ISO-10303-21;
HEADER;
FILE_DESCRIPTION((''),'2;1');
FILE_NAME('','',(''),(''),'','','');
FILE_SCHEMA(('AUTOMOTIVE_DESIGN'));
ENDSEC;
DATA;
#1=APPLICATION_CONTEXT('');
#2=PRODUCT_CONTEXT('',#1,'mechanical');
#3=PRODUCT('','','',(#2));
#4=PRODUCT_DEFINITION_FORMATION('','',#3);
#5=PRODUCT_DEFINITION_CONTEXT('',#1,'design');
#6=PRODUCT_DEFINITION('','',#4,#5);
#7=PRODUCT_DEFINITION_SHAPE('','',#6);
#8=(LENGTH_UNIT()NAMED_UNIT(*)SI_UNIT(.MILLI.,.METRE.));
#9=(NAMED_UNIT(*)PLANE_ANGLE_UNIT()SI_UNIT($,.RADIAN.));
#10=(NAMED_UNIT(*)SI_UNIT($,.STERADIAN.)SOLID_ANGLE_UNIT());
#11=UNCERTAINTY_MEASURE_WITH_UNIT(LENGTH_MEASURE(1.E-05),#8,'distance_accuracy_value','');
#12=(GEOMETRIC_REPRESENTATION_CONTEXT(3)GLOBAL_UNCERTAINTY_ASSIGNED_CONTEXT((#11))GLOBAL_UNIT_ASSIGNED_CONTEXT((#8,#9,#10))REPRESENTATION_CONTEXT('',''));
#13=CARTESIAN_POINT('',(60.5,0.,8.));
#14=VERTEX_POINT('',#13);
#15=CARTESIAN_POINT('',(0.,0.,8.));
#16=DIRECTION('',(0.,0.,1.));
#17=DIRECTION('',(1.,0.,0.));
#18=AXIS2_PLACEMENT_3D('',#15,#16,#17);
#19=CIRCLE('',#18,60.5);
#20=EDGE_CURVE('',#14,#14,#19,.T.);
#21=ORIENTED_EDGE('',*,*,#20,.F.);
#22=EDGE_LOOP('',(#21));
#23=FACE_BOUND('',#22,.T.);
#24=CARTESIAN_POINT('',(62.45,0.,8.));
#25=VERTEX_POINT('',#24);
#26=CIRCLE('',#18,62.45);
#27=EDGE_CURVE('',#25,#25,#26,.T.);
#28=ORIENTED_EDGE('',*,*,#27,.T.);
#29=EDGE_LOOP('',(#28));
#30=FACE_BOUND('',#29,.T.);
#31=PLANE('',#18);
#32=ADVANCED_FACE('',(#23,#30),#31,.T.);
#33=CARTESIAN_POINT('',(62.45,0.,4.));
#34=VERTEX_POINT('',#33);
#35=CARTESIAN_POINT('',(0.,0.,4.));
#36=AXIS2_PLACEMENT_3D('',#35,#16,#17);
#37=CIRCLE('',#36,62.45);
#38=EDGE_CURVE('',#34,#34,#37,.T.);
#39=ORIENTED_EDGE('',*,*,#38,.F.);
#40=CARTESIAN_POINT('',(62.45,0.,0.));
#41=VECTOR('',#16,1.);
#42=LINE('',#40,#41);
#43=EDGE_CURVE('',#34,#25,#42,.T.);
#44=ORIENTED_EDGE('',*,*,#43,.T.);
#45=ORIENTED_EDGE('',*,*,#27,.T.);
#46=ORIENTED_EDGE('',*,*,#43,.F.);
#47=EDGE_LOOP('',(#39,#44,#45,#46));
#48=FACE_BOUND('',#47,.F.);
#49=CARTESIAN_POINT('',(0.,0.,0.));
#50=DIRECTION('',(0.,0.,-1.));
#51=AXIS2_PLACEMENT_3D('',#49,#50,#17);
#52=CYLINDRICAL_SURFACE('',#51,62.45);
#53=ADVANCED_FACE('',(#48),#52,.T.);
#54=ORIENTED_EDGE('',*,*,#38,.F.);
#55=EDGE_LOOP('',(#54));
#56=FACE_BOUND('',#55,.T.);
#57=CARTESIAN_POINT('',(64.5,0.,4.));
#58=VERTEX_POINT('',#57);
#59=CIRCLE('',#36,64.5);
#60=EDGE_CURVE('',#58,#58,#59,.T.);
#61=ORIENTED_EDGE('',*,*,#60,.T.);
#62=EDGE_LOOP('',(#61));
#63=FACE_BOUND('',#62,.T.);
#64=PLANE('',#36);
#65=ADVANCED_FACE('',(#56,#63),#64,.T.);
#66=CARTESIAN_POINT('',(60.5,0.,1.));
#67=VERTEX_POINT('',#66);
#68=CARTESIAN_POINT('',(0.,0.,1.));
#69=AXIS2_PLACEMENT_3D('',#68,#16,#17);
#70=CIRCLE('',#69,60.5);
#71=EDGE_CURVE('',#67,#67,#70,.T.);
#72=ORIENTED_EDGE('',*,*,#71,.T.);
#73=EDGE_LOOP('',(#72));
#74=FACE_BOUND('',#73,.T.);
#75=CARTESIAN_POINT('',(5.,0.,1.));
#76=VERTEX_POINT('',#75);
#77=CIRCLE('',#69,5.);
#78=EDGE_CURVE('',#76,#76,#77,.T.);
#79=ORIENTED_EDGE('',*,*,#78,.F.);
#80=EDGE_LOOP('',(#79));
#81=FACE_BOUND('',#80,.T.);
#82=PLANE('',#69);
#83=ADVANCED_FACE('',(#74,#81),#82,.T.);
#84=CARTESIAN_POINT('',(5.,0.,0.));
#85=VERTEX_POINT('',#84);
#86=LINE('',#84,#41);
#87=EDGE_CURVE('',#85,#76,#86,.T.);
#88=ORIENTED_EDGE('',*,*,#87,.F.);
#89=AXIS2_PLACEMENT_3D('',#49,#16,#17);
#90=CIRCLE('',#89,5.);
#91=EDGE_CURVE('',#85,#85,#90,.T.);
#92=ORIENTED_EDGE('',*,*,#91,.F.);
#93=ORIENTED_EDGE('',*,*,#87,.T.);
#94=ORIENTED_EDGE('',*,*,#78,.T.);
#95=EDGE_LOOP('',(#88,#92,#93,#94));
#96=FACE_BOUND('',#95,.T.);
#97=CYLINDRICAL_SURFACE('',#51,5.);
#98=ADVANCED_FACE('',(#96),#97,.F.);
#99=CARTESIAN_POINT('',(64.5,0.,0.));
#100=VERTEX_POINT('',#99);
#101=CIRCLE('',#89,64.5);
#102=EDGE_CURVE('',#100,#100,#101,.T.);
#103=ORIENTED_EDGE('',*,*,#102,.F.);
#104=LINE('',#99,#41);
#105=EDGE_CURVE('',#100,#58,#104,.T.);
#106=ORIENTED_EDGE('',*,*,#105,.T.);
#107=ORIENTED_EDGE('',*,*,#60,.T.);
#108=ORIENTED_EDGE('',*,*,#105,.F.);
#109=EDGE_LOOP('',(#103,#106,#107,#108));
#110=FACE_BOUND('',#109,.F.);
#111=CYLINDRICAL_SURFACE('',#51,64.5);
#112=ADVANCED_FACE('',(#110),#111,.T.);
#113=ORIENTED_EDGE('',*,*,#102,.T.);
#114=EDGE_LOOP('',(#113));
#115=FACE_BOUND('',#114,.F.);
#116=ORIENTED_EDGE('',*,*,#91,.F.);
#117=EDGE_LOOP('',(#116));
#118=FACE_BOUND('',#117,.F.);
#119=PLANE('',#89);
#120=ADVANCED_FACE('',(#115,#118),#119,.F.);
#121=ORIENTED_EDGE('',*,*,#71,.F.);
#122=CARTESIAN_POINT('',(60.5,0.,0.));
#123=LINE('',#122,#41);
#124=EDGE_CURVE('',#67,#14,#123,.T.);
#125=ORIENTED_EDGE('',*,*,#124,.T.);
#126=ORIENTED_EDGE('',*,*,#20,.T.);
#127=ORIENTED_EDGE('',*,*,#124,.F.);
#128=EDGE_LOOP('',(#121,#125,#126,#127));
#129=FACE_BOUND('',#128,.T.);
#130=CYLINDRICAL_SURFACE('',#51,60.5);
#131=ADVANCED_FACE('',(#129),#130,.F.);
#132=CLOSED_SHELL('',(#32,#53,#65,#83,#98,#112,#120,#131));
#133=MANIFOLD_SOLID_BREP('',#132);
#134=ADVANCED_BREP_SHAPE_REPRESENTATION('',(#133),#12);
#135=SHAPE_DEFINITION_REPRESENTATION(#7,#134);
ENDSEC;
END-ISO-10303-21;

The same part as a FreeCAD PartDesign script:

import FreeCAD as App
import Part
import Sketcher
from FreeCAD import Vector
Q = App.Units.Quantity

doc = App.newDocument("Part")
body = doc.addObject("PartDesign::Body", "Body")

# Sketch on XY plane
sketch1 = body.newObject("Sketcher::SketchObject", "Sketch")
sketch1.AttachmentSupport = (doc.getObject("XY_Plane"), [""])
sketch1.MapMode = "FlatFace"
sketch1.addGeometry(Part.Circle(Vector(0, 0, 0), Vector(0, 0, 1), 60), False)
sketch1.addGeometry(Part.Circle(Vector(0, 0, 0), Vector(0, 0, 1), 5), False)
sketch1.addConstraint(Sketcher.Constraint("Coincident", 0, 3, -1, 1))
sketch1.addConstraint(Sketcher.Constraint("Coincident", 1, 3, -1, 1))
sketch1.addConstraint(Sketcher.Constraint("Diameter", 0, Q("121 mm")))
sketch1.addConstraint(Sketcher.Constraint("Diameter", 1, Q("10 mm")))
pad1 = body.newObject("PartDesign::Pad", "Pad")
pad1.Profile = sketch1
pad1.Length = 1

# Sketch on XY plane
sketch2 = body.newObject("Sketcher::SketchObject", "Sketch001")
sketch2.AttachmentSupport = (doc.getObject("XY_Plane"), [""])
sketch2.MapMode = "FlatFace"
sketch2.addGeometry(Part.Circle(Vector(0, 0, 0), Vector(0, 0, 1), 62), False)
sketch2.addGeometry(Part.Circle(Vector(0, 0, 0), Vector(0, 0, 1), 60), False)
sketch2.addConstraint(Sketcher.Constraint("Coincident", 0, 3, -1, 1))
sketch2.addConstraint(Sketcher.Constraint("Coincident", 1, 3, -1, 1))
sketch2.addConstraint(Sketcher.Constraint("Diameter", 1, Q("121 mm")))
sketch2.addConstraint(Sketcher.Constraint("Diameter", 0, Q("124.9 mm")))
pad2 = body.newObject("PartDesign::Pad", "Pad001")
pad2.Profile = sketch2
pad2.Length = 8

# Sketch on XY plane
sketch3 = body.newObject("Sketcher::SketchObject", "Sketch002")
sketch3.AttachmentSupport = (doc.getObject("XY_Plane"), [""])
sketch3.MapMode = "FlatFace"
sketch3.addGeometry(Part.Circle(Vector(0, 0, 0), Vector(0, 0, 1), 64), False)
sketch3.addGeometry(Part.Circle(Vector(0, 0, 0), Vector(0, 0, 1), 62), False)
sketch3.addConstraint(Sketcher.Constraint("Coincident", 0, 3, -1, 1))
sketch3.addConstraint(Sketcher.Constraint("Coincident", 1, 3, -1, 1))
sketch3.addConstraint(Sketcher.Constraint("Diameter", 0, Q("129 mm")))
sketch3.addConstraint(Sketcher.Constraint("Diameter", 1, Q("124.9 mm")))
pad3 = body.newObject("PartDesign::Pad", "Pad002")
pad3.Profile = sketch3
pad3.Length = 4

doc.recompute()
